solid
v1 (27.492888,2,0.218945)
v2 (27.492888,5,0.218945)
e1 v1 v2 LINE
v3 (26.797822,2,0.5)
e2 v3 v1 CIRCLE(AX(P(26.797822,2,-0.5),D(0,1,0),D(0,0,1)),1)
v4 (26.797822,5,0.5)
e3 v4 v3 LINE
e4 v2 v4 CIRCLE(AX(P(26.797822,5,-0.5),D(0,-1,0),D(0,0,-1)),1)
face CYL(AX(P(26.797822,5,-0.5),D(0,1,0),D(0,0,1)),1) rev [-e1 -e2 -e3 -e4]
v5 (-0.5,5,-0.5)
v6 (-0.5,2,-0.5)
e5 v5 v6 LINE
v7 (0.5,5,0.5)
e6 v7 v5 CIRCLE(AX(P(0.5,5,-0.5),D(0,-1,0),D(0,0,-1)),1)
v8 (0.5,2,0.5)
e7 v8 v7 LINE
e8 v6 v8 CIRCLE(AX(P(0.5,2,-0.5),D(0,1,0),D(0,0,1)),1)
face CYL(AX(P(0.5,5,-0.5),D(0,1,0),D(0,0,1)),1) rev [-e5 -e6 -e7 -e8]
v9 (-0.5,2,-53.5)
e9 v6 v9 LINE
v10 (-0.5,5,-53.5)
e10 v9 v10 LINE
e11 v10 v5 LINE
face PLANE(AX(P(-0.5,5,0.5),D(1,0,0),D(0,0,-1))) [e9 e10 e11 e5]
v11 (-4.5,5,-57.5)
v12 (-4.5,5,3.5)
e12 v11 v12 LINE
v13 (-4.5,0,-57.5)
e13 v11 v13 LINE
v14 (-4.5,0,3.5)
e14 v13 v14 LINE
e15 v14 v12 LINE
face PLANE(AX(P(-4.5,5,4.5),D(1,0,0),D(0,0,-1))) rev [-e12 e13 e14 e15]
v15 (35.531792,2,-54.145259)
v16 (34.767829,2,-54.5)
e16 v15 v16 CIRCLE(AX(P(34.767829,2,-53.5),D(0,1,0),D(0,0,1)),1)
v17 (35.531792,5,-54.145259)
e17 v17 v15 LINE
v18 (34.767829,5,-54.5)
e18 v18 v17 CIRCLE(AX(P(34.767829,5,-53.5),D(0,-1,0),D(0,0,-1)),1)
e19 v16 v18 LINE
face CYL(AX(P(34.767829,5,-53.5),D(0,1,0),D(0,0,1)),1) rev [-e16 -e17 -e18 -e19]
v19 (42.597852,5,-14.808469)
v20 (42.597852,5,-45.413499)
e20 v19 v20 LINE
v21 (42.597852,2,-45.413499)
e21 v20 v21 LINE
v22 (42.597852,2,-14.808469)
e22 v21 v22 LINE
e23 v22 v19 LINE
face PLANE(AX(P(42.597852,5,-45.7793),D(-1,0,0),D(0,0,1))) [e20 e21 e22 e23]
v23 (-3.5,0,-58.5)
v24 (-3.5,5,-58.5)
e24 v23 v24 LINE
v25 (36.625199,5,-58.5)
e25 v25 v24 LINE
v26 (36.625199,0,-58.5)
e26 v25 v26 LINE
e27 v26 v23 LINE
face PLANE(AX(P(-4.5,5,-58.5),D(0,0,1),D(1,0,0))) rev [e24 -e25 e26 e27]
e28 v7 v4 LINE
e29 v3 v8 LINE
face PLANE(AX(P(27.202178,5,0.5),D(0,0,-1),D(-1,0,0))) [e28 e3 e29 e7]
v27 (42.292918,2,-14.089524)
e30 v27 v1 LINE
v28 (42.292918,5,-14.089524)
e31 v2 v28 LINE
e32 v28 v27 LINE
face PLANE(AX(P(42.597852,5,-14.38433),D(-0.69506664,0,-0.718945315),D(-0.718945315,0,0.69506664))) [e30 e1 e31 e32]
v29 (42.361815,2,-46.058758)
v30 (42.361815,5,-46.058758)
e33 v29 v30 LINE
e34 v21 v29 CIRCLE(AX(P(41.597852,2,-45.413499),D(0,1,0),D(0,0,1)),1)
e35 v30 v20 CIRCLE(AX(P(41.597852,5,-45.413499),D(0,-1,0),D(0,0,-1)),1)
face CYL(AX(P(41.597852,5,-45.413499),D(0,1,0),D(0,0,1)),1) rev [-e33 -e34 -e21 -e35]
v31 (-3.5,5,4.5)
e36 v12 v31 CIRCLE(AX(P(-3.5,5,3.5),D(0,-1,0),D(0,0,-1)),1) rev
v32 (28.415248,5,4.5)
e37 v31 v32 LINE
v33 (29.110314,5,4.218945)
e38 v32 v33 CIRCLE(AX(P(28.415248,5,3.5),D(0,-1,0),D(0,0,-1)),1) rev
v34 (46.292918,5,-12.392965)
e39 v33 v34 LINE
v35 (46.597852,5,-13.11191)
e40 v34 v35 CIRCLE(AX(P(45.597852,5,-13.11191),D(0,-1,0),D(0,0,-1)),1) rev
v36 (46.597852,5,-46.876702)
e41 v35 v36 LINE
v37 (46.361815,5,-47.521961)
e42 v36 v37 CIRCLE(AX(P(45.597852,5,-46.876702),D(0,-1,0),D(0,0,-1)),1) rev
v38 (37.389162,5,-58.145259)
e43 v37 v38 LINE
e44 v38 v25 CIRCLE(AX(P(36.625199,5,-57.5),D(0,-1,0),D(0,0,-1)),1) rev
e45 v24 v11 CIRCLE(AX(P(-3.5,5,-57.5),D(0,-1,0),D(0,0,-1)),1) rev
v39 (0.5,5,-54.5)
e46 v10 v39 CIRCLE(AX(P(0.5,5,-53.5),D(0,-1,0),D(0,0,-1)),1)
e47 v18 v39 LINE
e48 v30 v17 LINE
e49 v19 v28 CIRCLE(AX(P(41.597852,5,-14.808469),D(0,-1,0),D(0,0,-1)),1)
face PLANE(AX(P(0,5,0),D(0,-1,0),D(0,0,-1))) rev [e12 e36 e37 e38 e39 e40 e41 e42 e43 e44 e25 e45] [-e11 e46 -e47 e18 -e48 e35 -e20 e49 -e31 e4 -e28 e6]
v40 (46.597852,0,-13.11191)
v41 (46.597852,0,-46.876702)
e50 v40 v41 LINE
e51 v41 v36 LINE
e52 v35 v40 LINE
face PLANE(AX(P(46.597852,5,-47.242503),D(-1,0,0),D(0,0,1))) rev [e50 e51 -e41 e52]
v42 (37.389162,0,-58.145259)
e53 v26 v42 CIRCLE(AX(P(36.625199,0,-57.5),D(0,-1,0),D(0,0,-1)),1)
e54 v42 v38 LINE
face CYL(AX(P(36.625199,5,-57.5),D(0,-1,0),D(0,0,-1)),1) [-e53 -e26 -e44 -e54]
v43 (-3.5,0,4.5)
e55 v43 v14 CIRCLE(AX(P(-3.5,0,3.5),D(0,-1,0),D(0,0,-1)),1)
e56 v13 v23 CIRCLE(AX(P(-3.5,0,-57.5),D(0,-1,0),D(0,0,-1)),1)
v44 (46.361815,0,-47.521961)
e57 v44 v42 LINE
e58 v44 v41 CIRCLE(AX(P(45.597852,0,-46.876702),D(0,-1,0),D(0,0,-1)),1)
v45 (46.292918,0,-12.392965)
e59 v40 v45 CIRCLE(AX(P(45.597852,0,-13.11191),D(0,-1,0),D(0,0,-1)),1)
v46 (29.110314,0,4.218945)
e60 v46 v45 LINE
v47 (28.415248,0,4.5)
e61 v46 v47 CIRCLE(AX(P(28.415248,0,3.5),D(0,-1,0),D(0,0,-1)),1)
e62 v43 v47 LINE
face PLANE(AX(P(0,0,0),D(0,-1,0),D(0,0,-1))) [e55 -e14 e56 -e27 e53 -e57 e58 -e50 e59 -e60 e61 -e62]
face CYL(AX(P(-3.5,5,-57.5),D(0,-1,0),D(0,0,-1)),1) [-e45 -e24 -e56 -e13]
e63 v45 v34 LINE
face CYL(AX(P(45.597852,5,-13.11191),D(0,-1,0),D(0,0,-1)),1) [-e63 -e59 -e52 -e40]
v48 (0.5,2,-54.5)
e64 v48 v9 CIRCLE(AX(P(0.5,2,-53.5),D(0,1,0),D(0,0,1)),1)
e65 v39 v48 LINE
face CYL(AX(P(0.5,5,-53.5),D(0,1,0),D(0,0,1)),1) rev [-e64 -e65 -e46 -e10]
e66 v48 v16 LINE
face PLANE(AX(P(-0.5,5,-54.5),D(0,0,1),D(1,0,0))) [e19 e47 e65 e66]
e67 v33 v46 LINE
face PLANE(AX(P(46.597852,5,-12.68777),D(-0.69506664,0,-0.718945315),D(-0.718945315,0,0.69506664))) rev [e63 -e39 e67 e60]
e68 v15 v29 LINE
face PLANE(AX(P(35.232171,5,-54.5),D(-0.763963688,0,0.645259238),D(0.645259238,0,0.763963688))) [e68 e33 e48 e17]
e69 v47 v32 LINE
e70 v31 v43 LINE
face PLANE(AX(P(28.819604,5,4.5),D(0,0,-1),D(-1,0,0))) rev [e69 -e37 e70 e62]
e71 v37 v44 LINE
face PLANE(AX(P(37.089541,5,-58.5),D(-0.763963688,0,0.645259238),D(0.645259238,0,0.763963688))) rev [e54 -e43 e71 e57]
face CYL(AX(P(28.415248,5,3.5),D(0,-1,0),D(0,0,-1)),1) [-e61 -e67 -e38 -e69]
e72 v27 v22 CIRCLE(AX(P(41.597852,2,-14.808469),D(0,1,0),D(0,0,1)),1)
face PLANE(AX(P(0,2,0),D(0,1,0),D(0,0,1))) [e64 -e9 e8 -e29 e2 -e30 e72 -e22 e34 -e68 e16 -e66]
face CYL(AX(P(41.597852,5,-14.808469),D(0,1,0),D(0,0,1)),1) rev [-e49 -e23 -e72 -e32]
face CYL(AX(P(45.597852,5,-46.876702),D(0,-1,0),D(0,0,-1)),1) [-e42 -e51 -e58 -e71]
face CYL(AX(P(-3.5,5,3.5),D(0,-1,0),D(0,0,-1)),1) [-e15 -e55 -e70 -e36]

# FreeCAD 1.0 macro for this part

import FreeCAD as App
import Part
import Sketcher
from FreeCAD import Vector
Q = App.Units.Quantity


def edges_at(feature, points):
    """Names of the edges that pass closest to the given points."""
    edges = feature.Shape.Edges
    near = lambda p: min(range(len(edges)), key=lambda i: edges[i].distToShape(Part.Vertex(*p))[0])
    return sorted({f"Edge{near(p) + 1}" for p in points})

doc = App.newDocument("Part")
body = doc.addObject("PartDesign::Body", "Body")

# Sketch on XZ plane
sketch1 = body.newObject("Sketcher::SketchObject", "Sketch")
sketch1.AttachmentSupport = (doc.getObject("XZ_Plane"), [""])
sketch1.MapMode = "FlatFace"
sketch1.addGeometry(Part.LineSegment(Vector(-4, -58, 0), Vector(-4, 4, 0)), False)
sketch1.addGeometry(Part.LineSegment(Vector(-4, 4, 0), Vector(29, 4, 0)), False)
sketch1.addGeometry(Part.LineSegment(Vector(29, 4, 0), Vector(47, -13, 0)), False)
sketch1.addGeometry(Part.LineSegment(Vector(47, -13, 0), Vector(47, -47, 0)), False)
sketch1.addGeometry(Part.LineSegment(Vector(47, -47, 0), Vector(37, -58, 0)), False)
sketch1.addGeometry(Part.LineSegment(Vector(37, -58, 0), Vector(-4, -58, 0)), False)
sketch1.addGeometry(Part.LineSegment(Vector(0, 0, 0), Vector(0, -54, 0)), False)
sketch1.addGeometry(Part.LineSegment(Vector(0, -54, 0), Vector(35, -54, 0)), False)
sketch1.addGeometry(Part.LineSegment(Vector(35, -54, 0), Vector(43, -46, 0)), False)
sketch1.addGeometry(Part.LineSegment(Vector(43, -46, 0), Vector(43, -14, 0)), False)
sketch1.addGeometry(Part.LineSegment(Vector(43, -14, 0), Vector(27, 0, 0)), False)
sketch1.addGeometry(Part.LineSegment(Vector(27, 0, 0), Vector(0, 0, 0)), False)
sketch1.addConstraint(Sketcher.Constraint("Coincident", 0, 2, 1, 1))
sketch1.addConstraint(Sketcher.Constraint("Coincident", 1, 2, 2, 1))
sketch1.addConstraint(Sketcher.Constraint("Coincident", 2, 2, 3, 1))
sketch1.addConstraint(Sketcher.Constraint("Coincident", 3, 2, 4, 1))
sketch1.addConstraint(Sketcher.Constraint("Coincident", 4, 2, 5, 1))
sketch1.addConstraint(Sketcher.Constraint("Coincident", 5, 2, 0, 1))
sketch1.addConstraint(Sketcher.Constraint("Coincident", 6, 2, 7, 1))
sketch1.addConstraint(Sketcher.Constraint("Coincident", 7, 2, 8, 1))
sketch1.addConstraint(Sketcher.Constraint("Coincident", 8, 2, 9, 1))
sketch1.addConstraint(Sketcher.Constraint("Coincident", 9, 2, 10, 1))
sketch1.addConstraint(Sketcher.Constraint("Coincident", 10, 2, 11, 1))
sketch1.addConstraint(Sketcher.Constraint("Coincident", 11, 2, 6, 1))
sketch1.addConstraint(Sketcher.Constraint("Vertical", 0))
sketch1.addConstraint(Sketcher.Constraint("Horizontal", 1))
sketch1.addConstraint(Sketcher.Constraint("Vertical", 3))
sketch1.addConstraint(Sketcher.Constraint("Horizontal", 5))
sketch1.addConstraint(Sketcher.Constraint("Vertical", 6))
sketch1.addConstraint(Sketcher.Constraint("Horizontal", 7))
sketch1.addConstraint(Sketcher.Constraint("Vertical", 9))
sketch1.addConstraint(Sketcher.Constraint("Horizontal", 11))
sketch1.addConstraint(Sketcher.Constraint("Parallel", 4, 8))
sketch1.addConstraint(Sketcher.Constraint("Parallel", 2, 10))
sketch1.addConstraint(Sketcher.Constraint("DistanceY", 0, 1, 0, 2, Q("63 mm")))
sketch1.addConstraint(Sketcher.Constraint("DistanceY", 6, 2, 6, 1, Q("55 mm")))
sketch1.addConstraint(Sketcher.Constraint("DistanceX", 5, 2, 6, 2, Q("4 mm")))
sketch1.addConstraint(Sketcher.Constraint("DistanceY", 5, 2, 6, 2, Q("4 mm")))
sketch1.addConstraint(Sketcher.Constraint("DistanceX", 8, 2, 3, 2, Q("4 mm")))
sketch1.addConstraint(Sketcher.Constraint("DistanceX", 0, 2, -1, 1, Q("4.5 mm")))
sketch1.addConstraint(Sketcher.Constraint("DistanceY", -1, 1, 0, 2, Q("4.5 mm")))
sketch1.addConstraint(Sketcher.Constraint("DistanceX", 5, 2, 5, 1, Q("41.589541 mm")))
sketch1.addConstraint(Sketcher.Constraint("DistanceX", 7, 1, 7, 2, Q("35.732171 mm")))
sketch1.addConstraint(Sketcher.Constraint("DistanceX", 11, 2, 11, 1, Q("27.702178 mm")))
sketch1.addConstraint(Sketcher.Constraint("DistanceY", 9, 1, 9, 2, Q("31.39497 mm")))
sketch1.addConstraint(Sketcher.Constraint("DistanceY", 8, 2, -1, 1, Q("45.7793 mm")))
sketch1.addConstraint(Sketcher.Constraint("Distance", 8, Q("11.415072 mm")))
sketch1.addConstraint(Sketcher.Constraint("DistanceX", 1, 1, 1, 2, Q("33.319604 mm")))
pad1 = body.newObject("PartDesign::Pad", "Pad")
pad1.Profile = sketch1
pad1.Length = 5
pad1.Reversed = True

# Sketch on XZ plane
sketch2 = body.newObject("Sketcher::SketchObject", "Sketch001")
sketch2.AttachmentSupport = (doc.getObject("XZ_Plane"), [""])
sketch2.MapMode = "FlatFace"
sketch2.addGeometry(Part.LineSegment(Vector(0, 0, 0), Vector(27, 0, 0)), False)
sketch2.addGeometry(Part.LineSegment(Vector(27, 0, 0), Vector(43, -14, 0)), False)
sketch2.addGeometry(Part.LineSegment(Vector(43, -14, 0), Vector(43, -46, 0)), False)
sketch2.addGeometry(Part.LineSegment(Vector(43, -46, 0), Vector(35, -54, 0)), False)
sketch2.addGeometry(Part.LineSegment(Vector(35, -54, 0), Vector(0, -54, 0)), False)
sketch2.addGeometry(Part.LineSegment(Vector(0, -54, 0), Vector(0, 0, 0)), False)
sketch2.addConstraint(Sketcher.Constraint("Coincident", 0, 2, 1, 1))
sketch2.addConstraint(Sketcher.Constraint("Coincident", 1, 2, 2, 1))
sketch2.addConstraint(Sketcher.Constraint("Coincident", 2, 2, 3, 1))
sketch2.addConstraint(Sketcher.Constraint("Coincident", 3, 2, 4, 1))
sketch2.addConstraint(Sketcher.Constraint("Coincident", 4, 2, 5, 1))
sketch2.addConstraint(Sketcher.Constraint("Coincident", 5, 2, 0, 1))
sketch2.addConstraint(Sketcher.Constraint("Horizontal", 0))
sketch2.addConstraint(Sketcher.Constraint("Vertical", 2))
sketch2.addConstraint(Sketcher.Constraint("Horizontal", 4))
sketch2.addConstraint(Sketcher.Constraint("Vertical", 5))
sketch2.addConstraint(Sketcher.Constraint("DistanceY", 5, 1, 5, 2, Q("55 mm")))
sketch2.addConstraint(Sketcher.Constraint("DistanceY", -1, 1, 0, 2, Q("0.5 mm")))
sketch2.addConstraint(Sketcher.Constraint("DistanceX", 4, 2, -1, 1, Q("0.5 mm")))
sketch2.addConstraint(Sketcher.Constraint("DistanceX", 0, 1, 0, 2, Q("27.702178 mm")))
sketch2.addConstraint(Sketcher.Constraint("DistanceX", 4, 2, 4, 1, Q("35.732171 mm")))
sketch2.addConstraint(Sketcher.Constraint("DistanceY", 2, 2, 2, 1, Q("31.39497 mm")))
sketch2.addConstraint(Sketcher.Constraint("DistanceY", 2, 2, -1, 1, Q("45.7793 mm")))
sketch2.addConstraint(Sketcher.Constraint("Distance", 1, Q("21.414248 mm")))
pad2 = body.newObject("PartDesign::Pad", "Pad001")
pad2.Profile = sketch2
pad2.Length = 2
pad2.Reversed = True
doc.recompute()

fillet = body.newObject("PartDesign::Fillet", "Fillet")
fillet.Base = (pad2, edges_at(pad2, [
    (-4.5, 2.5, 4.5),
    (-4.5, 2.5, -58.5),
    (37.09, 2.5, -58.5),
    (46.598, 2.5, -47.243),
    (46.598, 2.5, -12.688),
    (28.82, 2.5, 4.5),
    (-0.5, 3.5, 0.5),
    (27.202, 3.5, 0.5),
    (42.598, 3.5, -14.384),
    (42.598, 3.5, -45.779),
    (35.232, 3.5, -54.5),
    (-0.5, 3.5, -54.5),
]))
fillet.Radius = 1

doc.recompute()
